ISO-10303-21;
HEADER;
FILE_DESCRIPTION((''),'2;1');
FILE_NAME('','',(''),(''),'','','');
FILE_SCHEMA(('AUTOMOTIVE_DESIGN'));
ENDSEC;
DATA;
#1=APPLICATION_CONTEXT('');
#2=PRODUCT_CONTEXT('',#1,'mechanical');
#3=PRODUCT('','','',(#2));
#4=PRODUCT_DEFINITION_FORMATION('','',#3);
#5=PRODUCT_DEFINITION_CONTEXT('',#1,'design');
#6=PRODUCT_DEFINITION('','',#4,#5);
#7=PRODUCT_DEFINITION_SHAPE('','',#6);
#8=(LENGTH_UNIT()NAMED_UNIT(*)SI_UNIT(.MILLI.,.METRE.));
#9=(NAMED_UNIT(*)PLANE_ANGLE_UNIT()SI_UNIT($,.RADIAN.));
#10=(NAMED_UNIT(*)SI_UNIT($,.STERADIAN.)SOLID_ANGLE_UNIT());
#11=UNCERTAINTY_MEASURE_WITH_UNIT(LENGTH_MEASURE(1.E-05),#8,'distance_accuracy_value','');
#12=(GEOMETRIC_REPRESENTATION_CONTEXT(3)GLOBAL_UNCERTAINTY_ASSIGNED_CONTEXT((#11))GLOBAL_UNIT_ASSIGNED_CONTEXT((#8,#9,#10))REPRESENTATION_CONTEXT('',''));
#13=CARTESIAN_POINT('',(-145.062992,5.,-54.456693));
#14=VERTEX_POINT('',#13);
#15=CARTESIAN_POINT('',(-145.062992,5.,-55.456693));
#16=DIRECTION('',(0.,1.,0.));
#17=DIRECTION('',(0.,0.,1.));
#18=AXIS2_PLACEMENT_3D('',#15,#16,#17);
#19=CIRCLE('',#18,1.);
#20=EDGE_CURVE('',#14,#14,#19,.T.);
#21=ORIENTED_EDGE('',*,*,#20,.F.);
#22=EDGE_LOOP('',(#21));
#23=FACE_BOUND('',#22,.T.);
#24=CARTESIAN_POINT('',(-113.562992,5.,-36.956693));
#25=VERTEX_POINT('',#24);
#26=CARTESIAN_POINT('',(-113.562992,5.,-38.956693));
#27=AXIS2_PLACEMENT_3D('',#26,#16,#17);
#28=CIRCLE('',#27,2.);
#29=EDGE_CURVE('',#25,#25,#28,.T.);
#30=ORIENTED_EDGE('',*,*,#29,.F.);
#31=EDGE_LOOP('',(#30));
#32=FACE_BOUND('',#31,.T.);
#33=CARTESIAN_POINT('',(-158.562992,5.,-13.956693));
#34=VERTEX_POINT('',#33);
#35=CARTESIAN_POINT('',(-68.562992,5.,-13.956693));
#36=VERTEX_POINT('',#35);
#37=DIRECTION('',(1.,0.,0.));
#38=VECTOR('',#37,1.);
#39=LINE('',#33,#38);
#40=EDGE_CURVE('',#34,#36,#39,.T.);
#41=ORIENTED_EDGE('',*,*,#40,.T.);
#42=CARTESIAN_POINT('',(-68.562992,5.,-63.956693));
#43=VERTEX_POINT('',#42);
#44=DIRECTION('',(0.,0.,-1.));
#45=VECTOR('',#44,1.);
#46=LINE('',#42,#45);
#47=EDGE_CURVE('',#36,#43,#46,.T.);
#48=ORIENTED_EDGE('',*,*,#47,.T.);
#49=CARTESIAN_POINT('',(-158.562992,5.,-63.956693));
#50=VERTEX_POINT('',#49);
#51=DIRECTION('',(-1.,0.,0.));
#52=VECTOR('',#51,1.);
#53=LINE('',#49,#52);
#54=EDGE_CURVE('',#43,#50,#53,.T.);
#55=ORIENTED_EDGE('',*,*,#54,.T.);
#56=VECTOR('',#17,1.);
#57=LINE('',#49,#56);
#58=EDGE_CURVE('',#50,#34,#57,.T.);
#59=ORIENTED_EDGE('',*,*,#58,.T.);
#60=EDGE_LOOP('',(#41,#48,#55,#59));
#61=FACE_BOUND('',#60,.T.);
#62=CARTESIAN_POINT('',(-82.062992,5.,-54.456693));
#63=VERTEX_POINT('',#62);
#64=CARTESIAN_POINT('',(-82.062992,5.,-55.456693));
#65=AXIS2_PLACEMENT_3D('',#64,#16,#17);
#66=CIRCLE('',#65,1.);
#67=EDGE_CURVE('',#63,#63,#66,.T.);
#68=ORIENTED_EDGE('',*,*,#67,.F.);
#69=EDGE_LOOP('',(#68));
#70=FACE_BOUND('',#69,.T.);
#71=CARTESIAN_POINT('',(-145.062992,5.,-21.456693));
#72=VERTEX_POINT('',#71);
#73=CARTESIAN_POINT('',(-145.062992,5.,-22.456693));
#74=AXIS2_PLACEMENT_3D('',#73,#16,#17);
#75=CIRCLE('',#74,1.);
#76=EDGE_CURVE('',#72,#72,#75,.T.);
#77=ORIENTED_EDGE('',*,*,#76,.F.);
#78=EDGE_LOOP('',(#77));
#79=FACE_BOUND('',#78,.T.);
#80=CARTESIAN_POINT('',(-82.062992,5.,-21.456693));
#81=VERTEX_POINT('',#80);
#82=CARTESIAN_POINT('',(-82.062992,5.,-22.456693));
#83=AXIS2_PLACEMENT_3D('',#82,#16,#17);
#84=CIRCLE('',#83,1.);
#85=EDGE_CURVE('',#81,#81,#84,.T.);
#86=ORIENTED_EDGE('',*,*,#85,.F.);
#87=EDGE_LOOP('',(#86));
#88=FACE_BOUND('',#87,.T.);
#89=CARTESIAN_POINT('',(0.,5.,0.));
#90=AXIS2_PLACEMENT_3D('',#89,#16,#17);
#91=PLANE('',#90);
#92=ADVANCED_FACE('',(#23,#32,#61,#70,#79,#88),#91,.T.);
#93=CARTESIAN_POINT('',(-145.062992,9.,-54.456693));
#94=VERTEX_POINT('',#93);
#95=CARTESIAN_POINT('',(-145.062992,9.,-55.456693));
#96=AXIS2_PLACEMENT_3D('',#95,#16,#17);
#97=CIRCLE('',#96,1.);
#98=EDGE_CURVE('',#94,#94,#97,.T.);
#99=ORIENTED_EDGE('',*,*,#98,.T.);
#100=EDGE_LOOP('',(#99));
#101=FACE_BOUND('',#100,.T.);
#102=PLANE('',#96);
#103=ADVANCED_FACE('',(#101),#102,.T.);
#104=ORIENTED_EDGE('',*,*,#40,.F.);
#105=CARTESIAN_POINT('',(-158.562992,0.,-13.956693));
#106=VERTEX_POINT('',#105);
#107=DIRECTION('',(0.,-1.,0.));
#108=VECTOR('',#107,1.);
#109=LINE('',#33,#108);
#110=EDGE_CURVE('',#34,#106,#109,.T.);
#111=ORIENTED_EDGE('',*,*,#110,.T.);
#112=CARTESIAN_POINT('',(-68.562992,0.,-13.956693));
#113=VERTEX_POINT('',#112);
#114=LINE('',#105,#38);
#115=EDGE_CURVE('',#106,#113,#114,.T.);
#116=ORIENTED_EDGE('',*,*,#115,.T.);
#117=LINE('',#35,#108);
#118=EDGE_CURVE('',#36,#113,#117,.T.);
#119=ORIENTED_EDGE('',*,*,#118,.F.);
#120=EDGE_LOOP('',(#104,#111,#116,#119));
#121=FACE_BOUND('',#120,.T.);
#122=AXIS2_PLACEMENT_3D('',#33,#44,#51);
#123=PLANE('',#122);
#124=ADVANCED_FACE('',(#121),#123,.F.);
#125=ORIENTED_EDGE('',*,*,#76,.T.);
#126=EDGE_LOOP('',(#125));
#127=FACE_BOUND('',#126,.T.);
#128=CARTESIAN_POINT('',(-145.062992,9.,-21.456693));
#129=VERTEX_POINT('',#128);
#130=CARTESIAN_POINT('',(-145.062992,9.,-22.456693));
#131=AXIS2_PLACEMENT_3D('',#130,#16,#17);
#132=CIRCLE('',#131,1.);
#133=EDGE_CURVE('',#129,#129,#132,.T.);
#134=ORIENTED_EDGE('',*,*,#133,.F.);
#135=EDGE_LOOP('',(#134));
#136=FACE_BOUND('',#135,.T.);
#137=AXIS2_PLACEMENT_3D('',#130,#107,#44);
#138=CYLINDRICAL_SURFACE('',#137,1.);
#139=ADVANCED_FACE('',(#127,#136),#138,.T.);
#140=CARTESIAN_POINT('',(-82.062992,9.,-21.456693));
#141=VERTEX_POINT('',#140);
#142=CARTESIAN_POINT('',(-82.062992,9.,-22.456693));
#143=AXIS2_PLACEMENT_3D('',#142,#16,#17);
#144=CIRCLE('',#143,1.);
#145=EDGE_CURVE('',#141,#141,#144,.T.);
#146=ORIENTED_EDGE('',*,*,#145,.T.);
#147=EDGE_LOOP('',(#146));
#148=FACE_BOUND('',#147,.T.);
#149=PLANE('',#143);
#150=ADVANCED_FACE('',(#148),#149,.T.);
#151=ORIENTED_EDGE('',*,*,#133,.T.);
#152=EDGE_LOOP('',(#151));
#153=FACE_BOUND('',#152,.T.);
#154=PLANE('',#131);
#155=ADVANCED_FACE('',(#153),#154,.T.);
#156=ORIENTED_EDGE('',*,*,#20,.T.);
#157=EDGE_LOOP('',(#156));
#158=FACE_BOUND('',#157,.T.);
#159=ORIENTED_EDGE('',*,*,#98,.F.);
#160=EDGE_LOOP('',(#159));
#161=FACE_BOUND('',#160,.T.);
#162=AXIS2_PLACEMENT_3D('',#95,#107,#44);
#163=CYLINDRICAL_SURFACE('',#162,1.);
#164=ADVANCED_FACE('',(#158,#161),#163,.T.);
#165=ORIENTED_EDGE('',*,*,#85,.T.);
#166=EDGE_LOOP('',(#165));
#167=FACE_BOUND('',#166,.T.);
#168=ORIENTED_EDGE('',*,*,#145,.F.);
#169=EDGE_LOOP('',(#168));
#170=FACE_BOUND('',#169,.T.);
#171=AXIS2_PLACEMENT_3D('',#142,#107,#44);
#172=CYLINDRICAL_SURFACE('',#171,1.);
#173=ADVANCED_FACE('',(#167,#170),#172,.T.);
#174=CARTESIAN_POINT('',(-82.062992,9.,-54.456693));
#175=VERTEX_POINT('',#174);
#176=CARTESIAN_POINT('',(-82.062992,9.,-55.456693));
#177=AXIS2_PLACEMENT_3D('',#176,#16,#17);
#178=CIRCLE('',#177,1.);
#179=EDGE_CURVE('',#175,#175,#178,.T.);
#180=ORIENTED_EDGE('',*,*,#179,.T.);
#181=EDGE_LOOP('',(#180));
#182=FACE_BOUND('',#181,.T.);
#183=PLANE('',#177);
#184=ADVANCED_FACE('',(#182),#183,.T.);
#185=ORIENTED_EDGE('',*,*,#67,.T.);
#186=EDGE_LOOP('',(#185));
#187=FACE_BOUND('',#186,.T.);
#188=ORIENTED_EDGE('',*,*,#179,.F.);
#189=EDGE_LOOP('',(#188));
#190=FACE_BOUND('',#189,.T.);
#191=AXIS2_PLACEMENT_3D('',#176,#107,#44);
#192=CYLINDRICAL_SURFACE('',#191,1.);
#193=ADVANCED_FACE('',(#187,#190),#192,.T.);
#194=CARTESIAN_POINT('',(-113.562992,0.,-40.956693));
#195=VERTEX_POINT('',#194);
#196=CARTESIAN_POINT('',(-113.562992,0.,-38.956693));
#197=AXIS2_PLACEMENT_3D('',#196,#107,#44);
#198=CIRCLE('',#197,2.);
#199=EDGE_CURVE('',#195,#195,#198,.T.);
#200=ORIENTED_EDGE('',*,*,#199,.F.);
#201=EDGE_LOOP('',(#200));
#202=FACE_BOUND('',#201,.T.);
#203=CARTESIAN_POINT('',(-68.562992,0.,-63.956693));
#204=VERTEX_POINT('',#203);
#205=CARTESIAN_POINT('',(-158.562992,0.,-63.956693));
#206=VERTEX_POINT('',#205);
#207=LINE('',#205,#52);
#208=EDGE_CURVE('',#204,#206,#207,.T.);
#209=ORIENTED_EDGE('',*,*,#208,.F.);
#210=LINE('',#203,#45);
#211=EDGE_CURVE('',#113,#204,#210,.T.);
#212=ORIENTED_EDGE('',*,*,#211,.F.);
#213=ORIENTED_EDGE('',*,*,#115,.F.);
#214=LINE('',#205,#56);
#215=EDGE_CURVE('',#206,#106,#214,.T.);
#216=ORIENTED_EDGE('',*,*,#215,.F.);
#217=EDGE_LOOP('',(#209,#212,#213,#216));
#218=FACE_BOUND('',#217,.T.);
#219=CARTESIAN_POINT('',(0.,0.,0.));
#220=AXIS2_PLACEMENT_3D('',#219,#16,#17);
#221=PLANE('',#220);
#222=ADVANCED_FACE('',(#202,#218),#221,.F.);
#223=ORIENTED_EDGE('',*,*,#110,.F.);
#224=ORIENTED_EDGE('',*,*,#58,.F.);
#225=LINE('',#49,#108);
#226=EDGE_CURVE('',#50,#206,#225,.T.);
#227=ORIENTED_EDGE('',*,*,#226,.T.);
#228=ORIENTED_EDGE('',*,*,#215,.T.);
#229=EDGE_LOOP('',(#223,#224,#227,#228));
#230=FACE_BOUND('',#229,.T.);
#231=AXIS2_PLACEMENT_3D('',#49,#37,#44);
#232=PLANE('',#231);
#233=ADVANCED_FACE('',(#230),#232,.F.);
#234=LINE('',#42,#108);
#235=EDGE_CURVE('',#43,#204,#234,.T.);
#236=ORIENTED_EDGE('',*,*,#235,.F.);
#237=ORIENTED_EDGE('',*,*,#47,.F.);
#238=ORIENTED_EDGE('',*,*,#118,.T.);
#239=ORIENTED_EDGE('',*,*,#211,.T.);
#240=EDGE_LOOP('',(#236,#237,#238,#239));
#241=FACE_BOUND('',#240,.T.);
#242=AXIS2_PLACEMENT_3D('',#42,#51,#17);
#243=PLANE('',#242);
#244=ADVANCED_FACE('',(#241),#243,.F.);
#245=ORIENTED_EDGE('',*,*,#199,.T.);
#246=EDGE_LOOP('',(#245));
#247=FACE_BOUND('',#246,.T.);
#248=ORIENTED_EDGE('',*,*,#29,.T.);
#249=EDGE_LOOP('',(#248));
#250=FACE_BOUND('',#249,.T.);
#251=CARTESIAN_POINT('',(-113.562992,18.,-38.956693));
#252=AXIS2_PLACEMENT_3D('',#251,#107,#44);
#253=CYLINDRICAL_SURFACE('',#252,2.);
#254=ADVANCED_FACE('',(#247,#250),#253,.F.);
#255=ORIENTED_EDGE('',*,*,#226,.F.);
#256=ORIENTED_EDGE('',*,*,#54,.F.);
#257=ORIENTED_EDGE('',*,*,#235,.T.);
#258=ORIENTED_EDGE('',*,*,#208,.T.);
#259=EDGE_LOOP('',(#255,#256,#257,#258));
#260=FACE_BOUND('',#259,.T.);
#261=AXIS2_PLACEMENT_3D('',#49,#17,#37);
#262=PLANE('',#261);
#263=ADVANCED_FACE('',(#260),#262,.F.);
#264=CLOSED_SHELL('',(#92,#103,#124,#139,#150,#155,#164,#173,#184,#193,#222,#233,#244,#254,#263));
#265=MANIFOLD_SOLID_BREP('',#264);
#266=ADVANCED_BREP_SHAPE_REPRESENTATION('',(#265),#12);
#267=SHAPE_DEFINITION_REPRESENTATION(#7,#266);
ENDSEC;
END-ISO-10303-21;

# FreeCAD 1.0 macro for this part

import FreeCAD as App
import Part
import Sketcher
from FreeCAD import Vector
Q = App.Units.Quantity

doc = App.newDocument("Part")
params = doc.addObject("Spreadsheet::Sheet", "Params")
for row, (alias, value) in enumerate([
    ("sketch1_width", "90 mm"),
    ("sketch1_height", "50 mm"),
    ("pad1_length", "5 mm"),
    ("sketch2_diameter", "2 mm"),
    ("pad2_length", "4 mm"),
    ("sketch3_diameter", "4 mm"),
    ("pocket1_length", "18 mm"),
], start=1):
    params.set(f"A{row}", alias)
    params.set(f"B{row}", "=" + value)
    params.setAlias(f"B{row}", alias)

body = doc.addObject("PartDesign::Body", "Body")

sketch1 = body.newObject("Sketcher::SketchObject", "Sketch")
sketch1.AttachmentSupport = (doc.getObject("XZ_Plane"), [""])
sketch1.MapMode = "FlatFace"
sketch1.addGeometry([
    Part.LineSegment(Vector(-159, -64, 0), Vector(-159, -14, 0)),
    Part.LineSegment(Vector(-159, -14, 0), Vector(-69, -14, 0)),
    Part.LineSegment(Vector(-69, -14, 0), Vector(-69, -64, 0)),
    Part.LineSegment(Vector(-69, -64, 0), Vector(-159, -64, 0)),
], False)
sketch1.addConstraint([
    Sketcher.Constraint("Coincident", 0, 2, 1, 1),
    Sketcher.Constraint("Coincident", 1, 2, 2, 1),
    Sketcher.Constraint("Coincident", 2, 2, 3, 1),
    Sketcher.Constraint("Coincident", 3, 2, 0, 1),
    Sketcher.Constraint("Vertical", 0),
    Sketcher.Constraint("Horizontal", 1),
    Sketcher.Constraint("Vertical", 2),
    Sketcher.Constraint("Horizontal", 3),
    Sketcher.Constraint("DistanceX", 1, 1, 1, 2, Q("90 mm")),
    Sketcher.Constraint("DistanceY", 0, 1, 0, 2, Q("50 mm")),
    Sketcher.Constraint("DistanceX", 0, 2, -1, 1, Q("158.562992 mm")),
    Sketcher.Constraint("DistanceY", 0, 2, -1, 1, Q("13.956693 mm")),
])
sketch1.setExpression("Constraints[8]", "Params.sketch1_width")
sketch1.setExpression("Constraints[9]", "Params.sketch1_height")
pad1 = body.newObject("PartDesign::Pad", "Pad")
pad1.Profile = sketch1
pad1.setExpression("Length", "Params.pad1_length")
pad1.Reversed = True

sketch2 = body.newObject("Sketcher::SketchObject", "Sketch001")
sketch2.AttachmentSupport = (doc.getObject("XZ_Plane"), [""])
sketch2.MapMode = "FlatFace"
sketch2.AttachmentOffset = App.Placement(Vector(0, 0, -5), App.Rotation())
sketch2.addGeometry([
    Part.Circle(Vector(-145.1, -22.5, 0), Vector(0, 0, 1), 1),
    Part.Circle(Vector(-145.1, -55.5, 0), Vector(0, 0, 1), 1),
    Part.Circle(Vector(-82.1, -55.5, 0), Vector(0, 0, 1), 1),
    Part.Circle(Vector(-82.1, -22.5, 0), Vector(0, 0, 1), 1),
], False)
sketch2.addConstraint([
    Sketcher.Constraint("Equal", 0, 1),
    Sketcher.Constraint("Equal", 1, 2),
    Sketcher.Constraint("Equal", 2, 3),
    Sketcher.Constraint("Horizontal", 1, 3, 2, 3),
    Sketcher.Constraint("Horizontal", 0, 3, 3, 3),
    Sketcher.Constraint("Vertical", 0, 3, 1, 3),
    Sketcher.Constraint("Vertical", 2, 3, 3, 3),
    Sketcher.Constraint("Diameter", 0, Q("2 mm")),
    Sketcher.Constraint("DistanceY", 1, 3, 0, 3, Q("33 mm")),
    Sketcher.Constraint("DistanceX", 1, 3, 2, 3, Q("63 mm")),
    Sketcher.Constraint("DistanceX", 0, 3, -1, 1, Q("145.062992 mm")),
    Sketcher.Constraint("DistanceY", 0, 3, -1, 1, Q("22.456693 mm")),
])
sketch2.setExpression("Constraints[7]", "Params.sketch2_diameter")
pad2 = body.newObject("PartDesign::Pad", "Pad001")
pad2.Profile = sketch2
pad2.setExpression("Length", "Params.pad2_length")
pad2.Reversed = True

sketch3 = body.newObject("Sketcher::SketchObject", "Sketch002")
sketch3.AttachmentSupport = (doc.getObject("XZ_Plane"), [""])
sketch3.MapMode = "FlatFace"
sketch3.addGeometry(Part.Circle(Vector(-113.6, -39, 0), Vector(0, 0, 1), 2), False)
sketch3.addConstraint([
    Sketcher.Constraint("Diameter", 0, Q("4 mm")),
    Sketcher.Constraint("DistanceX", 0, 3, -1, 1, Q("113.562992 mm")),
    Sketcher.Constraint("DistanceY", 0, 3, -1, 1, Q("38.956693 mm")),
])
sketch3.setExpression("Constraints[0]", "Params.sketch3_diameter")
pocket1 = body.newObject("PartDesign::Pocket", "Pocket")
pocket1.Profile = sketch3
pocket1.setExpression("Length", "Params.pocket1_length")

doc.recompute()
